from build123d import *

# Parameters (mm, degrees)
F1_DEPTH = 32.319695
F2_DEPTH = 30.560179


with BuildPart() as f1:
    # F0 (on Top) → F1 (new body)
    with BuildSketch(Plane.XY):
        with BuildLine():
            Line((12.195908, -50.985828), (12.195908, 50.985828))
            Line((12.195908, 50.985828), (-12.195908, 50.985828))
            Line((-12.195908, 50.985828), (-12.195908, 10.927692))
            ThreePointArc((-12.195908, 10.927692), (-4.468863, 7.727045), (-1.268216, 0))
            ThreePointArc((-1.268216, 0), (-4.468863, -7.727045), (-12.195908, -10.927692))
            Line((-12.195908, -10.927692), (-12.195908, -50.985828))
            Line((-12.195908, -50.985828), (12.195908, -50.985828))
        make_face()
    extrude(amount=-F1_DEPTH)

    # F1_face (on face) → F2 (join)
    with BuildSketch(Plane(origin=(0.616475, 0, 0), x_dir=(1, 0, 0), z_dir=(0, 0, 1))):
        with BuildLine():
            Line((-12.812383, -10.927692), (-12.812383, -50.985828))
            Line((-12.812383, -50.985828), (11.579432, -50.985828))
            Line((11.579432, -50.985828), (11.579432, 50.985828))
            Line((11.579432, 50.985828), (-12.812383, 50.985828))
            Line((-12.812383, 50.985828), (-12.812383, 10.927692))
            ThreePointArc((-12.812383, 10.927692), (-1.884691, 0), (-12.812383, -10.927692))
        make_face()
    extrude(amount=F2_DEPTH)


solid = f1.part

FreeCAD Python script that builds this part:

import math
import FreeCAD as App
import Part
import Sketcher
from FreeCAD import Vector
Q = App.Units.Quantity

doc = App.newDocument("Part")
body = doc.addObject("PartDesign::Body", "Body")

sketch1 = body.newObject("Sketcher::SketchObject", "Sketch")
sketch1.AttachmentSupport = (doc.getObject("XY_Plane"), [""])
sketch1.MapMode = "FlatFace"
sketch1.addGeometry([
    Part.LineSegment(Vector(12.195908, -50.985828, 0), Vector(12.195908, 50.985828, 0)),
    Part.LineSegment(Vector(12.195908, 50.985828, 0), Vector(-12.195908, 50.985828, 0)),
    Part.LineSegment(Vector(-12.195908, 50.985828, 0), Vector(-12.195908, 10.927692, 0)),
    Part.ArcOfCircle(Part.Circle(Vector(-12.195908, 0, 0), Vector(0, 0, 1), 10.927692), math.radians(0.000002), math.radians(89.999998)),
    Part.ArcOfCircle(Part.Circle(Vector(-12.195908, 0, 0), Vector(0, 0, 1), 10.927692), math.radians(-89.999998), math.radians(-0.000002)),
    Part.LineSegment(Vector(-12.195908, -10.927692, 0), Vector(-12.195908, -50.985828, 0)),
    Part.LineSegment(Vector(-12.195908, -50.985828, 0), Vector(12.195908, -50.985828, 0)),
], False)
sketch1.addConstraint([
    Sketcher.Constraint("Coincident", 0, 2, 1, 1),
    Sketcher.Constraint("Coincident", 1, 2, 2, 1),
    Sketcher.Constraint("Coincident", 2, 2, 3, 2),
    Sketcher.Constraint("Tangent", 3, 1, 4, 2),
    Sketcher.Constraint("Coincident", 4, 1, 5, 1),
    Sketcher.Constraint("Coincident", 5, 2, 6, 1),
    Sketcher.Constraint("Coincident", 6, 2, 0, 1),
    Sketcher.Constraint("Vertical", 0),
    Sketcher.Constraint("Horizontal", 1),
    Sketcher.Constraint("Vertical", 2),
    Sketcher.Constraint("Vertical", 5),
    Sketcher.Constraint("Horizontal", 6),
    Sketcher.Constraint("Equal", 3, 4),
    Sketcher.Constraint("Symmetric", 0, 2, 5, 2, -1, 1),
    Sketcher.Constraint("Symmetric", 2, 2, 4, 1, -1),
    Sketcher.Constraint("PointOnObject", 3, 1, -1),
    Sketcher.Constraint("Vertical", 4, 3, 1, 2),
    Sketcher.Constraint("Radius", 3, Q("10.927692 mm")),
    Sketcher.Constraint("DistanceX", 1, 2, 1, 1, Q("24.391816 mm")),
    Sketcher.Constraint("DistanceY", 0, 1, 0, 2, Q("101.971656 mm")),
])
pad1 = body.newObject("PartDesign::Pad", "Pad")
pad1.Profile = sketch1
pad1.Length = 32.319695
pad1.Reversed = True

sketch2 = body.newObject("Sketcher::SketchObject", "Sketch001")
sketch2.AttachmentSupport = (doc.getObject("XY_Plane"), [""])
sketch2.MapMode = "FlatFace"
sketch2.addGeometry([
    Part.LineSegment(Vector(-12.195908, -10.927692, 0), Vector(-12.195908, -50.985828, 0)),
    Part.LineSegment(Vector(-12.195908, -50.985828, 0), Vector(12.195907, -50.985828, 0)),
    Part.LineSegment(Vector(12.195907, -50.985828, 0), Vector(12.195907, 50.985828, 0)),
    Part.LineSegment(Vector(12.195907, 50.985828, 0), Vector(-12.195908, 50.985828, 0)),
    Part.LineSegment(Vector(-12.195908, 50.985828, 0), Vector(-12.195908, 10.927692, 0)),
    Part.ArcOfCircle(Part.Circle(Vector(-12.195908, 0, 0), Vector(0, 0, 1), 10.927692), math.radians(-90), math.radians(90)),
], False)
sketch2.addConstraint([
    Sketcher.Constraint("Coincident", 0, 2, 1, 1),
    Sketcher.Constraint("Coincident", 1, 2, 2, 1),
    Sketcher.Constraint("Coincident", 2, 2, 3, 1),
    Sketcher.Constraint("Coincident", 3, 2, 4, 1),
    Sketcher.Constraint("Coincident", 4, 2, 5, 2),
    Sketcher.Constraint("Coincident", 5, 1, 0, 1),
    Sketcher.Constraint("Vertical", 0),
    Sketcher.Constraint("Horizontal", 1),
    Sketcher.Constraint("Vertical", 2),
    Sketcher.Constraint("Horizontal", 3),
    Sketcher.Constraint("Vertical", 4),
    Sketcher.Constraint("Symmetric", 0, 2, 2, 2, -1, 1),
    Sketcher.Constraint("Symmetric", 4, 2, 5, 1, -1),
    Sketcher.Constraint("Vertical", 5, 3, 0, 2),
    Sketcher.Constraint("Radius", 5, Q("10.927692 mm")),
    Sketcher.Constraint("DistanceX", 1, 1, 1, 2, Q("24.391815 mm")),
    Sketcher.Constraint("DistanceY", 0, 2, 0, 1, Q("40.058136 mm")),
])
pad2 = body.newObject("PartDesign::Pad", "Pad001")
pad2.Profile = sketch2
pad2.Length = 30.560179

doc.recompute()
